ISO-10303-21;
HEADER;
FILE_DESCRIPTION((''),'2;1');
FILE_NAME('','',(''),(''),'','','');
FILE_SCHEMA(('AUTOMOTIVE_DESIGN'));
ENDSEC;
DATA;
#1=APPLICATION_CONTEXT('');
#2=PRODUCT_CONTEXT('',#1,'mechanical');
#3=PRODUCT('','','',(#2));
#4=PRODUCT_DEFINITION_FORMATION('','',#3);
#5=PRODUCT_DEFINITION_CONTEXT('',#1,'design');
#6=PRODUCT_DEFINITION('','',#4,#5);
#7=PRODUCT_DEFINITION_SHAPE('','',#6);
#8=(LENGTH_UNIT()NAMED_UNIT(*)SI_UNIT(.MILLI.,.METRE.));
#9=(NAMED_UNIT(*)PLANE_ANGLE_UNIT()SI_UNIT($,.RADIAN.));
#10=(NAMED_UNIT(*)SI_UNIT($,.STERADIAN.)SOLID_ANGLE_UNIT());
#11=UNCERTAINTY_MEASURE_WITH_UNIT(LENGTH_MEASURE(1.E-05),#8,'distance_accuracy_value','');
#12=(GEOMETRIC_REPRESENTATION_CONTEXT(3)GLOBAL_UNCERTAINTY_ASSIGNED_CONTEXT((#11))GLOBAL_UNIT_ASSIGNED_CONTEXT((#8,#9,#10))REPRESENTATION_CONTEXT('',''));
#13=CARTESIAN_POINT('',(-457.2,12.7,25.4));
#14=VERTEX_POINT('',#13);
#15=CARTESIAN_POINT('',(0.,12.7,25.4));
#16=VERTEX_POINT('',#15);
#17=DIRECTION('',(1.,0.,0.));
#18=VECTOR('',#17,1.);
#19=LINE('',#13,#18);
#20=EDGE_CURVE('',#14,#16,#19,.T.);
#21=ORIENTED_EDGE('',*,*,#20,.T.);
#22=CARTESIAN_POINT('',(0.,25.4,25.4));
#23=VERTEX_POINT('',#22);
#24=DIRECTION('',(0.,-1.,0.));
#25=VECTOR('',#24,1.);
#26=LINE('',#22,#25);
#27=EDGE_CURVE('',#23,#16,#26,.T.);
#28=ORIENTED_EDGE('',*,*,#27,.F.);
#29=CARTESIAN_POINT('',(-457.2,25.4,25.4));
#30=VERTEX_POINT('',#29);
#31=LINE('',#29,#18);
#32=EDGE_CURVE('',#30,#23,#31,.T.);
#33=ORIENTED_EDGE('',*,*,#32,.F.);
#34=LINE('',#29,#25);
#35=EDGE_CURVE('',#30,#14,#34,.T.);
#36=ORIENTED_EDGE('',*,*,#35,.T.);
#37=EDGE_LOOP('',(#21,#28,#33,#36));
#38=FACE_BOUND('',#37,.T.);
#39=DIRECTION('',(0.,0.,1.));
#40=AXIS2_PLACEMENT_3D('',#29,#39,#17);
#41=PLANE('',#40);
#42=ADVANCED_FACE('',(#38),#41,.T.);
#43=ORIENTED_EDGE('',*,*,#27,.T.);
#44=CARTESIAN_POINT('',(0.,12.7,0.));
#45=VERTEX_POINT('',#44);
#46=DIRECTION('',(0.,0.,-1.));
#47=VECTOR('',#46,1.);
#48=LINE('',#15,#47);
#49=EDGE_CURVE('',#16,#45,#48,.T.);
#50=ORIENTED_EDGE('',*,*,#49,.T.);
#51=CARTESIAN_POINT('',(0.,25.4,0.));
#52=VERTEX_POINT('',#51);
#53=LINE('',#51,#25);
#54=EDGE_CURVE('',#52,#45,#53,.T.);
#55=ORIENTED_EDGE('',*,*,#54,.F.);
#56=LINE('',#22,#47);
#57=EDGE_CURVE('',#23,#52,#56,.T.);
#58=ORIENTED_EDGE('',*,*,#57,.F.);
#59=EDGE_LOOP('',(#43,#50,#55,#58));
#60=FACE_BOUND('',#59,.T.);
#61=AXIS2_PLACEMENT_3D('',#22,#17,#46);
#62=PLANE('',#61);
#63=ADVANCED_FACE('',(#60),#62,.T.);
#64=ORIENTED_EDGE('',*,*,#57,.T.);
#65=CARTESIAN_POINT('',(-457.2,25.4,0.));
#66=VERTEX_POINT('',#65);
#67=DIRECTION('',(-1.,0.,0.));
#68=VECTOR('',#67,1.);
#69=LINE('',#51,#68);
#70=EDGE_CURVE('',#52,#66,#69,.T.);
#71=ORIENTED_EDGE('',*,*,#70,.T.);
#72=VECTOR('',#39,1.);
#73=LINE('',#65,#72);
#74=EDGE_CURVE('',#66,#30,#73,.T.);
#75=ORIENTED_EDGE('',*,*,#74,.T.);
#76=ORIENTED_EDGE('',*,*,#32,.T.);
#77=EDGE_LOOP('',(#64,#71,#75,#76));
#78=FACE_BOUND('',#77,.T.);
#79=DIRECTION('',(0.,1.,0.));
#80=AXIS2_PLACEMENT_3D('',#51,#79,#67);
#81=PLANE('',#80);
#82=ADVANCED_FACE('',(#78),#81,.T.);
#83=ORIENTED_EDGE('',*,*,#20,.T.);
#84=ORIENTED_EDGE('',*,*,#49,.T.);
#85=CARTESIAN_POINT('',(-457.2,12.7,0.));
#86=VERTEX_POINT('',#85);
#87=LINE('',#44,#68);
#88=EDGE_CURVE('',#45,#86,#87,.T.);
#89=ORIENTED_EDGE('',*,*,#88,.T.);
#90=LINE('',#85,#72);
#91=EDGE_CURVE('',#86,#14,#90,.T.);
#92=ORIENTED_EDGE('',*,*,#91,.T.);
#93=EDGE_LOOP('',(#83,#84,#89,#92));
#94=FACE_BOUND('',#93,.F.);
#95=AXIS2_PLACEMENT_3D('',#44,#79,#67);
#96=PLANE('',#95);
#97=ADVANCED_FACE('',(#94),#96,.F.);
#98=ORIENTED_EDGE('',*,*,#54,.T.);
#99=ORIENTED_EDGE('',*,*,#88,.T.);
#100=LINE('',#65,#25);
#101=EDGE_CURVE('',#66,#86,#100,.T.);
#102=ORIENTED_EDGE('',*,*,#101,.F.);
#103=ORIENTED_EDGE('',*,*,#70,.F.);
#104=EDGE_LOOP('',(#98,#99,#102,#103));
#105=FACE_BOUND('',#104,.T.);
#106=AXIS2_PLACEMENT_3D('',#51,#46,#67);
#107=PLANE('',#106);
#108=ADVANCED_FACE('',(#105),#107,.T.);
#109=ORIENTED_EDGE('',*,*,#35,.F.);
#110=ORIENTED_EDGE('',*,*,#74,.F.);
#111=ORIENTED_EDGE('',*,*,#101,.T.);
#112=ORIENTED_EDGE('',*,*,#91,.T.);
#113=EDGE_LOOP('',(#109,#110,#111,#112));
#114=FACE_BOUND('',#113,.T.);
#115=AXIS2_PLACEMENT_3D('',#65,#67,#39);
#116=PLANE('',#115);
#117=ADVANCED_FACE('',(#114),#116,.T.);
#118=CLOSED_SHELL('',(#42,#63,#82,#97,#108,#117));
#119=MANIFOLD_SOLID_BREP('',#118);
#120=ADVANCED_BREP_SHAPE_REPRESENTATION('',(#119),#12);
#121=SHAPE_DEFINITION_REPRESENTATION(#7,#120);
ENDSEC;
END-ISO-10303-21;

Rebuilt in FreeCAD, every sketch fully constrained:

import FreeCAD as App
import Part
import Sketcher
from FreeCAD import Vector
Q = App.Units.Quantity


def add_polygon(sketch, points):
    """Adds a closed chain of lines whose ends are joined by coincident constraints."""
    first, n = sketch.GeometryCount, len(points)
    for a, b in zip(points, points[1:] + points[:1]):
        sketch.addGeometry(Part.LineSegment(App.Vector(*a, 0), App.Vector(*b, 0)), False)
    for i in range(n):
        sketch.addConstraint(Sketcher.Constraint("Coincident", first + i, 2, first + (i + 1) % n, 1))

doc = App.newDocument("Part")
params = doc.addObject("Spreadsheet::Sheet", "Params")
for row, (alias, value) in enumerate([
    ("sketch1_width", "18 in"),
    ("sketch1_height", "1 in"),
    ("pad1_length", "0.5 in"),
], start=1):
    params.set(f"A{row}", alias)
    params.set(f"B{row}", "=" + value)
    params.setAlias(f"B{row}", alias)

body = doc.addObject("PartDesign::Body", "Body")

# Sketch on XZ plane
sketch1 = body.newObject("Sketcher::SketchObject", "Sketch")
sketch1.AttachmentSupport = (doc.getObject("XZ_Plane"), [""])
sketch1.MapMode = "FlatFace"
sketch1.AttachmentOffset = App.Placement(Vector(0, 0, -1 * 25.4), App.Rotation())
add_polygon(sketch1, [(0, 25), (0, 0), (-457, 0), (-457, 25)])  # lines 0-3
sketch1.addConstraint([
    Sketcher.Constraint("Vertical", 0),
    Sketcher.Constraint("Horizontal", 1),
    Sketcher.Constraint("Vertical", 2),
    Sketcher.Constraint("Horizontal", 3),
    Sketcher.Constraint("Coincident", 0, 2, -1, 1),
    Sketcher.Constraint("DistanceX", 1, 2, 1, 1, Q("18 in")),
    Sketcher.Constraint("DistanceY", 0, 2, 0, 1, Q("1 in")),
])
sketch1.setExpression("Constraints[9]", "Params.sketch1_width")
sketch1.setExpression("Constraints[10]", "Params.sketch1_height")
pad1 = body.newObject("PartDesign::Pad", "Pad")
pad1.Profile = sketch1
pad1.setExpression("Length", "Params.pad1_length")

doc.recompute()
